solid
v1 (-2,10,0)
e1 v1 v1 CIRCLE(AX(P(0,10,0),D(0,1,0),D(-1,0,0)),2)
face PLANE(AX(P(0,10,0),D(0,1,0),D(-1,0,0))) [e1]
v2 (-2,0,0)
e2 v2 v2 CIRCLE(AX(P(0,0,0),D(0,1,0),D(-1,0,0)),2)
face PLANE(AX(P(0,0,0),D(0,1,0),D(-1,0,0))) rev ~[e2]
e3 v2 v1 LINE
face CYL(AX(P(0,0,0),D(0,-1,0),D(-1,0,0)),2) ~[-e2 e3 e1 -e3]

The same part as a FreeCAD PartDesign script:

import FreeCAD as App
import Part
import Sketcher

V = App.Vector
Q = App.Units.Quantity

doc = App.newDocument("Part")
body = doc.addObject("PartDesign::Body", "Body")

sketch1 = doc.addObject("Sketcher::SketchObject", "Sketch")
body.addObject(sketch1)
sketch1.AttachmentSupport = (doc.XZ_Plane, [""])
sketch1.MapMode = "FlatFace"
sketch1.addGeometry(Part.Circle(V(0, 0, 0), V(0, 0, 1), 2), False)
sketch1.addConstraint(Sketcher.Constraint("Coincident", 0, 3, -1, 1))
sketch1.addConstraint(Sketcher.Constraint("Diameter", 0, Q("4 mm")))
pad1 = doc.addObject("PartDesign::Pad", "Pad")
body.addObject(pad1)
pad1.Profile = sketch1
pad1.Length = 10
pad1.Reversed = True

doc.recompute()
